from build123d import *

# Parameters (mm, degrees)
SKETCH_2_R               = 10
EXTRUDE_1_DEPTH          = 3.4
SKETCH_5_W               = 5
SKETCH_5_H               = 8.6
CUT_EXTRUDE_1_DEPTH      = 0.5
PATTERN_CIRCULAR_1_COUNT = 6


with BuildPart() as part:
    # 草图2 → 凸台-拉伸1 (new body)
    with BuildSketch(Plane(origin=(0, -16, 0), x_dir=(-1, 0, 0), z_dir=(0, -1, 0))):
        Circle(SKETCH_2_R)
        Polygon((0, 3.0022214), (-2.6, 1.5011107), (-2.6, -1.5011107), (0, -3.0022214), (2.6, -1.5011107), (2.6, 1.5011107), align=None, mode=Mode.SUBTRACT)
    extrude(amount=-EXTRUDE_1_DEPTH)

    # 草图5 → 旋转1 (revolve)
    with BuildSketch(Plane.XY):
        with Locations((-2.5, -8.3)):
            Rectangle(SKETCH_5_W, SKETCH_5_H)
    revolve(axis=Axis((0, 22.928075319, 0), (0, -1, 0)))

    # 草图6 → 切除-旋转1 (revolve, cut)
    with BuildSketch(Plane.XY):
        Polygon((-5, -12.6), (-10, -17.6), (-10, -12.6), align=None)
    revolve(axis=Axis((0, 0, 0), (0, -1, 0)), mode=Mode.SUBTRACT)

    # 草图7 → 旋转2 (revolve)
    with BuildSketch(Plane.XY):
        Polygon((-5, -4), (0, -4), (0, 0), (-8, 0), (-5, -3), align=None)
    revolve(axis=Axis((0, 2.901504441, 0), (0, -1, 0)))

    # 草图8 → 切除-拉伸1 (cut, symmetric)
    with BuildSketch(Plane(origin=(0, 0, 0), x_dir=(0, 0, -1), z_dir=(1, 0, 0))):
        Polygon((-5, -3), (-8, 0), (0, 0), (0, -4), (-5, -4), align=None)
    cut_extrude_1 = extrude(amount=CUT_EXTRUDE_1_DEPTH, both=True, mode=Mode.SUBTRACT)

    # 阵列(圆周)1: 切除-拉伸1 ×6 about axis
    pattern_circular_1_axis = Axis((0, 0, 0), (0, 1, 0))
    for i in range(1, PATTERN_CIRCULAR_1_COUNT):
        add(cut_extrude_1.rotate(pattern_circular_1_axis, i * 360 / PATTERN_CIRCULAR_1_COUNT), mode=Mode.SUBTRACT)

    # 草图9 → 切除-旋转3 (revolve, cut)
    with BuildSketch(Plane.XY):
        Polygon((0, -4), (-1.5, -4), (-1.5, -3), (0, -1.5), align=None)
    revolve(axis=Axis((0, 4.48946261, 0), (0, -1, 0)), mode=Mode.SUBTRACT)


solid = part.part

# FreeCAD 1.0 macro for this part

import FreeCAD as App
import Part
import Sketcher
from FreeCAD import Vector
Q = App.Units.Quantity

doc = App.newDocument("Part")
params = doc.addObject("Spreadsheet::Sheet", "Params")
for row, (alias, value) in enumerate([
    ("sketch1_diameter", "20 mm"),
    ("pad1_length", "3.4 mm"),
    ("sketch2_width", "5 mm"),
    ("sketch2_height", "8.6 mm"),
    ("revolution_angle", "360 deg"),
    ("sketch3_width", "5 mm"),
    ("groove_angle", "360 deg"),
    ("sketch4_width", "5 mm"),
    ("sketch4_width2", "8 mm"),
    ("sketch4_height", "4 mm"),
    ("sketch4_height2", "1 mm"),
    ("revolution2_angle", "360 deg"),
    ("sketch5_width", "1 mm"),
    ("sketch5_width2", "4 mm"),
    ("sketch5_height", "5 mm"),
    ("sketch5_height2", "8 mm"),
    ("pocket1_length", "1 mm"),
    ("sketch6_height", "1 mm"),
    ("sketch6_width", "1.5 mm"),
    ("groove2_angle", "360 deg"),
], start=1):
    params.set(f"A{row}", alias)
    params.set(f"B{row}", "=" + value)
    params.setAlias(f"B{row}", alias)

body = doc.addObject("PartDesign::Body", "Body")

sketch1 = body.newObject("Sketcher::SketchObject", "Sketch")
sketch1.AttachmentSupport = (doc.getObject("XZ_Plane"), [""])
sketch1.MapMode = "FlatFace"
sketch1.AttachmentOffset = App.Placement(Vector(0, 0, 16), App.Rotation())
sketch1.addGeometry(Part.Circle(Vector(0, 0, 0), Vector(0, 0, 1), 10), False)
sketch1.addGeometry(Part.LineSegment(Vector(2.6, -1.5, 0), Vector(0, -3, 0)), False)
sketch1.addGeometry(Part.LineSegment(Vector(0, -3, 0), Vector(-2.6, -1.5, 0)), False)
sketch1.addGeometry(Part.LineSegment(Vector(-2.6, -1.5, 0), Vector(-2.6, 1.5, 0)), False)
sketch1.addGeometry(Part.LineSegment(Vector(-2.6, 1.5, 0), Vector(0, 3, 0)), False)
sketch1.addGeometry(Part.LineSegment(Vector(0, 3, 0), Vector(2.6, 1.5, 0)), False)
sketch1.addGeometry(Part.LineSegment(Vector(2.6, 1.5, 0), Vector(2.6, -1.5, 0)), False)
sketch1.addConstraint(Sketcher.Constraint("Coincident", 1, 2, 2, 1))
sketch1.addConstraint(Sketcher.Constraint("Coincident", 2, 2, 3, 1))
sketch1.addConstraint(Sketcher.Constraint("Coincident", 3, 2, 4, 1))
sketch1.addConstraint(Sketcher.Constraint("Coincident", 4, 2, 5, 1))
sketch1.addConstraint(Sketcher.Constraint("Coincident", 5, 2, 6, 1))
sketch1.addConstraint(Sketcher.Constraint("Coincident", 6, 2, 1, 1))
sketch1.addConstraint(Sketcher.Constraint("Vertical", 3))
sketch1.addConstraint(Sketcher.Constraint("Vertical", 6))
sketch1.addConstraint(Sketcher.Constraint("Coincident", 0, 3, -1, 1))
sketch1.addConstraint(Sketcher.Constraint("Symmetric", 1, 2, 4, 2, -1, 1))
sketch1.addConstraint(Sketcher.Constraint("Symmetric", 2, 2, 5, 2, -1, 1))
sketch1.addConstraint(Sketcher.Constraint("PointOnObject", 1, 2, -2))
sketch1.addConstraint(Sketcher.Constraint("Parallel", 1, 4))
sketch1.addConstraint(Sketcher.Constraint("Horizontal", 3, 2, 5, 2))
sketch1.addConstraint(Sketcher.Constraint("Diameter", 0, 20.0))
sketch1.addConstraint(Sketcher.Constraint("Angle", 1, Q("-150 deg")))
sketch1.addConstraint(Sketcher.Constraint("DistanceX", 2, 2, -1, 1, 2.6))
sketch1.addConstraint(Sketcher.Constraint("DistanceY", 3, 1, 3, 2, 3.002221))
sketch1.setExpression("Constraints[14]", "Params.sketch1_diameter")
pad1 = body.newObject("PartDesign::Pad", "Pad")
pad1.Profile = sketch1
pad1.setExpression("Length", "Params.pad1_length")
pad1.Reversed = True

sketch2 = body.newObject("Sketcher::SketchObject", "Sketch001")
sketch2.AttachmentSupport = (doc.getObject("XY_Plane"), [""])
sketch2.MapMode = "FlatFace"
sketch2.addGeometry(Part.LineSegment(Vector(-5, -4, 0), Vector(-5, -13, 0)), False)
sketch2.addGeometry(Part.LineSegment(Vector(-5, -13, 0), Vector(0, -13, 0)), False)
sketch2.addGeometry(Part.LineSegment(Vector(0, -13, 0), Vector(0, -4, 0)), False)
sketch2.addGeometry(Part.LineSegment(Vector(0, -4, 0), Vector(-5, -4, 0)), False)
sketch2.addConstraint(Sketcher.Constraint("Coincident", 0, 2, 1, 1))
sketch2.addConstraint(Sketcher.Constraint("Coincident", 1, 2, 2, 1))
sketch2.addConstraint(Sketcher.Constraint("Coincident", 2, 2, 3, 1))
sketch2.addConstraint(Sketcher.Constraint("Coincident", 3, 2, 0, 1))
sketch2.addConstraint(Sketcher.Constraint("Vertical", 0))
sketch2.addConstraint(Sketcher.Constraint("Horizontal", 1))
sketch2.addConstraint(Sketcher.Constraint("Vertical", 2))
sketch2.addConstraint(Sketcher.Constraint("Horizontal", 3))
sketch2.addConstraint(Sketcher.Constraint("PointOnObject", 1, 2, -2))
sketch2.addConstraint(Sketcher.Constraint("DistanceX", 1, 1, 1, 2, 5.0))
sketch2.addConstraint(Sketcher.Constraint("DistanceY", 0, 2, 0, 1, 8.6))
sketch2.addConstraint(Sketcher.Constraint("DistanceY", 2, 2, -1, 1, 4.0))
sketch2.setExpression("Constraints[9]", "Params.sketch2_width")
sketch2.setExpression("Constraints[10]", "Params.sketch2_height")
revolution = body.newObject("PartDesign::Revolution", "Revolution")
revolution.Profile = sketch2
revolution.ReferenceAxis = (sketch2, ["V_Axis"])
revolution.setExpression("Angle", "Params.revolution_angle")

sketch3 = body.newObject("Sketcher::SketchObject", "Sketch002")
sketch3.AttachmentSupport = (doc.getObject("XY_Plane"), [""])
sketch3.MapMode = "FlatFace"
sketch3.addGeometry(Part.LineSegment(Vector(-10, -18, 0), Vector(-5, -13, 0)), False)
sketch3.addGeometry(Part.LineSegment(Vector(-5, -13, 0), Vector(-10, -13, 0)), False)
sketch3.addGeometry(Part.LineSegment(Vector(-10, -13, 0), Vector(-10, -18, 0)), False)
sketch3.addConstraint(Sketcher.Constraint("Coincident", 0, 2, 1, 1))
sketch3.addConstraint(Sketcher.Constraint("Coincident", 1, 2, 2, 1))
sketch3.addConstraint(Sketcher.Constraint("Coincident", 2, 2, 0, 1))
sketch3.addConstraint(Sketcher.Constraint("Horizontal", 1))
sketch3.addConstraint(Sketcher.Constraint("Vertical", 2))
sketch3.addConstraint(Sketcher.Constraint("Equal", 1, 2))
sketch3.addConstraint(Sketcher.Constraint("DistanceX", 1, 2, 1, 1, 5.0))
sketch3.addConstraint(Sketcher.Constraint("DistanceX", 0, 2, -1, 1, 5.0))
sketch3.addConstraint(Sketcher.Constraint("DistanceY", 0, 2, -1, 1, 12.6))
sketch3.setExpression("Constraints[6]", "Params.sketch3_width")
groove = body.newObject("PartDesign::Groove", "Groove")
groove.Profile = sketch3
groove.ReferenceAxis = (sketch3, ["V_Axis"])
groove.setExpression("Angle", "Params.groove_angle")

sketch4 = body.newObject("Sketcher::SketchObject", "Sketch003")
sketch4.AttachmentSupport = (doc.getObject("XY_Plane"), [""])
sketch4.MapMode = "FlatFace"
sketch4.addGeometry(Part.LineSegment(Vector(-5, -4, 0), Vector(0, -4, 0)), False)
sketch4.addGeometry(Part.LineSegment(Vector(0, -4, 0), Vector(0, 0, 0)), False)
sketch4.addGeometry(Part.LineSegment(Vector(0, 0, 0), Vector(-8, 0, 0)), False)
sketch4.addGeometry(Part.LineSegment(Vector(-8, 0, 0), Vector(-5, -3, 0)), False)
sketch4.addGeometry(Part.LineSegment(Vector(-5, -3, 0), Vector(-5, -4, 0)), False)
sketch4.addConstraint(Sketcher.Constraint("Coincident", 0, 2, 1, 1))
sketch4.addConstraint(Sketcher.Constraint("Coincident", 1, 2, 2, 1))
sketch4.addConstraint(Sketcher.Constraint("Coincident", 2, 2, 3, 1))
sketch4.addConstraint(Sketcher.Constraint("Coincident", 3, 2, 4, 1))
sketch4.addConstraint(Sketcher.Constraint("Coincident", 4, 2, 0, 1))
sketch4.addConstraint(Sketcher.Constraint("Horizontal", 0))
sketch4.addConstraint(Sketcher.Constraint("Vertical", 1))
sketch4.addConstraint(Sketcher.Constraint("Horizontal", 2))
sketch4.addConstraint(Sketcher.Constraint("Vertical", 4))
sketch4.addConstraint(Sketcher.Constraint("Coincident", 1, 2, -1, 1))
sketch4.addConstraint(Sketcher.Constraint("DistanceX", 0, 1, 0, 2, 5.0))
sketch4.addConstraint(Sketcher.Constraint("DistanceX", 2, 2, 2, 1, 8.0))
sketch4.addConstraint(Sketcher.Constraint("DistanceY", 1, 1, 1, 2, 4.0))
sketch4.addConstraint(Sketcher.Constraint("DistanceY", 4, 2, 4, 1, 1.0))
sketch4.setExpression("Constraints[10]", "Params.sketch4_width")
sketch4.setExpression("Constraints[11]", "Params.sketch4_width2")
sketch4.setExpression("Constraints[12]", "Params.sketch4_height")
sketch4.setExpression("Constraints[13]", "Params.sketch4_height2")
revolution2 = body.newObject("PartDesign::Revolution", "Revolution001")
revolution2.Profile = sketch4
revolution2.ReferenceAxis = (sketch4, ["V_Axis"])
revolution2.setExpression("Angle", "Params.revolution2_angle")

sketch5 = body.newObject("Sketcher::SketchObject", "Sketch004")
sketch5.AttachmentSupport = (doc.getObject("YZ_Plane"), [""])
sketch5.MapMode = "FlatFace"
sketch5.addGeometry(Part.LineSegment(Vector(0, 8, 0), Vector(-3, 5, 0)), False)
sketch5.addGeometry(Part.LineSegment(Vector(-3, 5, 0), Vector(-4, 5, 0)), False)
sketch5.addGeometry(Part.LineSegment(Vector(-4, 5, 0), Vector(-4, 0, 0)), False)
sketch5.addGeometry(Part.LineSegment(Vector(-4, 0, 0), Vector(0, 0, 0)), False)
sketch5.addGeometry(Part.LineSegment(Vector(0, 0, 0), Vector(0, 8, 0)), False)
sketch5.addConstraint(Sketcher.Constraint("Coincident", 0, 2, 1, 1))
sketch5.addConstraint(Sketcher.Constraint("Coincident", 1, 2, 2, 1))
sketch5.addConstraint(Sketcher.Constraint("Coincident", 2, 2, 3, 1))
sketch5.addConstraint(Sketcher.Constraint("Coincident", 3, 2, 4, 1))
sketch5.addConstraint(Sketcher.Constraint("Coincident", 4, 2, 0, 1))
sketch5.addConstraint(Sketcher.Constraint("Horizontal", 1))
sketch5.addConstraint(Sketcher.Constraint("Vertical", 2))
sketch5.addConstraint(Sketcher.Constraint("Horizontal", 3))
sketch5.addConstraint(Sketcher.Constraint("Vertical", 4))
sketch5.addConstraint(Sketcher.Constraint("Coincident", 3, 2, -1, 1))
sketch5.addConstraint(Sketcher.Constraint("DistanceX", 1, 2, 1, 1, 1.0))
sketch5.addConstraint(Sketcher.Constraint("DistanceX", 3, 1, 3, 2, 4.0))
sketch5.addConstraint(Sketcher.Constraint("DistanceY", 2, 2, 2, 1, 5.0))
sketch5.addConstraint(Sketcher.Constraint("DistanceY", 4, 1, 4, 2, 8.0))
sketch5.setExpression("Constraints[10]", "Params.sketch5_width")
sketch5.setExpression("Constraints[11]", "Params.sketch5_width2")
sketch5.setExpression("Constraints[12]", "Params.sketch5_height")
sketch5.setExpression("Constraints[13]", "Params.sketch5_height2")
pocket1 = body.newObject("PartDesign::Pocket", "Pocket")
pocket1.Profile = sketch5
pocket1.setExpression("Length", "Params.pocket1_length")
pocket1.Midplane = True
doc.recompute()

polarpattern = body.newObject("PartDesign::PolarPattern", "PolarPattern")
polarpattern.Originals = [pocket1]
polarpattern.Axis = (doc.getObject("Y_Axis"), [""])
polarpattern.Angle = 360
polarpattern.Occurrences = 6
body.Tip = polarpattern

sketch6 = body.newObject("Sketcher::SketchObject", "Sketch005")
sketch6.AttachmentSupport = (doc.getObject("XY_Plane"), [""])
sketch6.MapMode = "FlatFace"
sketch6.addGeometry(Part.LineSegment(Vector(-1.5, -4, 0), Vector(0, -4, 0)), False)
sketch6.addGeometry(Part.LineSegment(Vector(0, -4, 0), Vector(0, -1.5, 0)), False)
sketch6.addGeometry(Part.LineSegment(Vector(0, -1.5, 0), Vector(-1.5, -3, 0)), False)
sketch6.addGeometry(Part.LineSegment(Vector(-1.5, -3, 0), Vector(-1.5, -4, 0)), False)
sketch6.addConstraint(Sketcher.Constraint("Coincident", 0, 2, 1, 1))
sketch6.addConstraint(Sketcher.Constraint("Coincident", 1, 2, 2, 1))
sketch6.addConstraint(Sketcher.Constraint("Coincident", 2, 2, 3, 1))
sketch6.addConstraint(Sketcher.Constraint("Coincident", 3, 2, 0, 1))
sketch6.addConstraint(Sketcher.Constraint("Horizontal", 0))
sketch6.addConstraint(Sketcher.Constraint("Vertical", 1))
sketch6.addConstraint(Sketcher.Constraint("Vertical", 3))
sketch6.addConstraint(Sketcher.Constraint("PointOnObject", 0, 2, -2))
sketch6.addConstraint(Sketcher.Constraint("DistanceY", 3, 2, 3, 1, 1.0))
sketch6.addConstraint(Sketcher.Constraint("Angle", 2, Q("-135 deg")))
sketch6.addConstraint(Sketcher.Constraint("DistanceX", 0, 1, 0, 2, 1.5))
sketch6.addConstraint(Sketcher.Constraint("DistanceY", 0, 2, -1, 1, 4.0))
sketch6.setExpression("Constraints[8]", "Params.sketch6_height")
sketch6.setExpression("Constraints[10]", "Params.sketch6_width")
groove2 = body.newObject("PartDesign::Groove", "Groove001")
groove2.Profile = sketch6
groove2.ReferenceAxis = (sketch6, ["V_Axis"])
groove2.setExpression("Angle", "Params.groove2_angle")

doc.recompute()
